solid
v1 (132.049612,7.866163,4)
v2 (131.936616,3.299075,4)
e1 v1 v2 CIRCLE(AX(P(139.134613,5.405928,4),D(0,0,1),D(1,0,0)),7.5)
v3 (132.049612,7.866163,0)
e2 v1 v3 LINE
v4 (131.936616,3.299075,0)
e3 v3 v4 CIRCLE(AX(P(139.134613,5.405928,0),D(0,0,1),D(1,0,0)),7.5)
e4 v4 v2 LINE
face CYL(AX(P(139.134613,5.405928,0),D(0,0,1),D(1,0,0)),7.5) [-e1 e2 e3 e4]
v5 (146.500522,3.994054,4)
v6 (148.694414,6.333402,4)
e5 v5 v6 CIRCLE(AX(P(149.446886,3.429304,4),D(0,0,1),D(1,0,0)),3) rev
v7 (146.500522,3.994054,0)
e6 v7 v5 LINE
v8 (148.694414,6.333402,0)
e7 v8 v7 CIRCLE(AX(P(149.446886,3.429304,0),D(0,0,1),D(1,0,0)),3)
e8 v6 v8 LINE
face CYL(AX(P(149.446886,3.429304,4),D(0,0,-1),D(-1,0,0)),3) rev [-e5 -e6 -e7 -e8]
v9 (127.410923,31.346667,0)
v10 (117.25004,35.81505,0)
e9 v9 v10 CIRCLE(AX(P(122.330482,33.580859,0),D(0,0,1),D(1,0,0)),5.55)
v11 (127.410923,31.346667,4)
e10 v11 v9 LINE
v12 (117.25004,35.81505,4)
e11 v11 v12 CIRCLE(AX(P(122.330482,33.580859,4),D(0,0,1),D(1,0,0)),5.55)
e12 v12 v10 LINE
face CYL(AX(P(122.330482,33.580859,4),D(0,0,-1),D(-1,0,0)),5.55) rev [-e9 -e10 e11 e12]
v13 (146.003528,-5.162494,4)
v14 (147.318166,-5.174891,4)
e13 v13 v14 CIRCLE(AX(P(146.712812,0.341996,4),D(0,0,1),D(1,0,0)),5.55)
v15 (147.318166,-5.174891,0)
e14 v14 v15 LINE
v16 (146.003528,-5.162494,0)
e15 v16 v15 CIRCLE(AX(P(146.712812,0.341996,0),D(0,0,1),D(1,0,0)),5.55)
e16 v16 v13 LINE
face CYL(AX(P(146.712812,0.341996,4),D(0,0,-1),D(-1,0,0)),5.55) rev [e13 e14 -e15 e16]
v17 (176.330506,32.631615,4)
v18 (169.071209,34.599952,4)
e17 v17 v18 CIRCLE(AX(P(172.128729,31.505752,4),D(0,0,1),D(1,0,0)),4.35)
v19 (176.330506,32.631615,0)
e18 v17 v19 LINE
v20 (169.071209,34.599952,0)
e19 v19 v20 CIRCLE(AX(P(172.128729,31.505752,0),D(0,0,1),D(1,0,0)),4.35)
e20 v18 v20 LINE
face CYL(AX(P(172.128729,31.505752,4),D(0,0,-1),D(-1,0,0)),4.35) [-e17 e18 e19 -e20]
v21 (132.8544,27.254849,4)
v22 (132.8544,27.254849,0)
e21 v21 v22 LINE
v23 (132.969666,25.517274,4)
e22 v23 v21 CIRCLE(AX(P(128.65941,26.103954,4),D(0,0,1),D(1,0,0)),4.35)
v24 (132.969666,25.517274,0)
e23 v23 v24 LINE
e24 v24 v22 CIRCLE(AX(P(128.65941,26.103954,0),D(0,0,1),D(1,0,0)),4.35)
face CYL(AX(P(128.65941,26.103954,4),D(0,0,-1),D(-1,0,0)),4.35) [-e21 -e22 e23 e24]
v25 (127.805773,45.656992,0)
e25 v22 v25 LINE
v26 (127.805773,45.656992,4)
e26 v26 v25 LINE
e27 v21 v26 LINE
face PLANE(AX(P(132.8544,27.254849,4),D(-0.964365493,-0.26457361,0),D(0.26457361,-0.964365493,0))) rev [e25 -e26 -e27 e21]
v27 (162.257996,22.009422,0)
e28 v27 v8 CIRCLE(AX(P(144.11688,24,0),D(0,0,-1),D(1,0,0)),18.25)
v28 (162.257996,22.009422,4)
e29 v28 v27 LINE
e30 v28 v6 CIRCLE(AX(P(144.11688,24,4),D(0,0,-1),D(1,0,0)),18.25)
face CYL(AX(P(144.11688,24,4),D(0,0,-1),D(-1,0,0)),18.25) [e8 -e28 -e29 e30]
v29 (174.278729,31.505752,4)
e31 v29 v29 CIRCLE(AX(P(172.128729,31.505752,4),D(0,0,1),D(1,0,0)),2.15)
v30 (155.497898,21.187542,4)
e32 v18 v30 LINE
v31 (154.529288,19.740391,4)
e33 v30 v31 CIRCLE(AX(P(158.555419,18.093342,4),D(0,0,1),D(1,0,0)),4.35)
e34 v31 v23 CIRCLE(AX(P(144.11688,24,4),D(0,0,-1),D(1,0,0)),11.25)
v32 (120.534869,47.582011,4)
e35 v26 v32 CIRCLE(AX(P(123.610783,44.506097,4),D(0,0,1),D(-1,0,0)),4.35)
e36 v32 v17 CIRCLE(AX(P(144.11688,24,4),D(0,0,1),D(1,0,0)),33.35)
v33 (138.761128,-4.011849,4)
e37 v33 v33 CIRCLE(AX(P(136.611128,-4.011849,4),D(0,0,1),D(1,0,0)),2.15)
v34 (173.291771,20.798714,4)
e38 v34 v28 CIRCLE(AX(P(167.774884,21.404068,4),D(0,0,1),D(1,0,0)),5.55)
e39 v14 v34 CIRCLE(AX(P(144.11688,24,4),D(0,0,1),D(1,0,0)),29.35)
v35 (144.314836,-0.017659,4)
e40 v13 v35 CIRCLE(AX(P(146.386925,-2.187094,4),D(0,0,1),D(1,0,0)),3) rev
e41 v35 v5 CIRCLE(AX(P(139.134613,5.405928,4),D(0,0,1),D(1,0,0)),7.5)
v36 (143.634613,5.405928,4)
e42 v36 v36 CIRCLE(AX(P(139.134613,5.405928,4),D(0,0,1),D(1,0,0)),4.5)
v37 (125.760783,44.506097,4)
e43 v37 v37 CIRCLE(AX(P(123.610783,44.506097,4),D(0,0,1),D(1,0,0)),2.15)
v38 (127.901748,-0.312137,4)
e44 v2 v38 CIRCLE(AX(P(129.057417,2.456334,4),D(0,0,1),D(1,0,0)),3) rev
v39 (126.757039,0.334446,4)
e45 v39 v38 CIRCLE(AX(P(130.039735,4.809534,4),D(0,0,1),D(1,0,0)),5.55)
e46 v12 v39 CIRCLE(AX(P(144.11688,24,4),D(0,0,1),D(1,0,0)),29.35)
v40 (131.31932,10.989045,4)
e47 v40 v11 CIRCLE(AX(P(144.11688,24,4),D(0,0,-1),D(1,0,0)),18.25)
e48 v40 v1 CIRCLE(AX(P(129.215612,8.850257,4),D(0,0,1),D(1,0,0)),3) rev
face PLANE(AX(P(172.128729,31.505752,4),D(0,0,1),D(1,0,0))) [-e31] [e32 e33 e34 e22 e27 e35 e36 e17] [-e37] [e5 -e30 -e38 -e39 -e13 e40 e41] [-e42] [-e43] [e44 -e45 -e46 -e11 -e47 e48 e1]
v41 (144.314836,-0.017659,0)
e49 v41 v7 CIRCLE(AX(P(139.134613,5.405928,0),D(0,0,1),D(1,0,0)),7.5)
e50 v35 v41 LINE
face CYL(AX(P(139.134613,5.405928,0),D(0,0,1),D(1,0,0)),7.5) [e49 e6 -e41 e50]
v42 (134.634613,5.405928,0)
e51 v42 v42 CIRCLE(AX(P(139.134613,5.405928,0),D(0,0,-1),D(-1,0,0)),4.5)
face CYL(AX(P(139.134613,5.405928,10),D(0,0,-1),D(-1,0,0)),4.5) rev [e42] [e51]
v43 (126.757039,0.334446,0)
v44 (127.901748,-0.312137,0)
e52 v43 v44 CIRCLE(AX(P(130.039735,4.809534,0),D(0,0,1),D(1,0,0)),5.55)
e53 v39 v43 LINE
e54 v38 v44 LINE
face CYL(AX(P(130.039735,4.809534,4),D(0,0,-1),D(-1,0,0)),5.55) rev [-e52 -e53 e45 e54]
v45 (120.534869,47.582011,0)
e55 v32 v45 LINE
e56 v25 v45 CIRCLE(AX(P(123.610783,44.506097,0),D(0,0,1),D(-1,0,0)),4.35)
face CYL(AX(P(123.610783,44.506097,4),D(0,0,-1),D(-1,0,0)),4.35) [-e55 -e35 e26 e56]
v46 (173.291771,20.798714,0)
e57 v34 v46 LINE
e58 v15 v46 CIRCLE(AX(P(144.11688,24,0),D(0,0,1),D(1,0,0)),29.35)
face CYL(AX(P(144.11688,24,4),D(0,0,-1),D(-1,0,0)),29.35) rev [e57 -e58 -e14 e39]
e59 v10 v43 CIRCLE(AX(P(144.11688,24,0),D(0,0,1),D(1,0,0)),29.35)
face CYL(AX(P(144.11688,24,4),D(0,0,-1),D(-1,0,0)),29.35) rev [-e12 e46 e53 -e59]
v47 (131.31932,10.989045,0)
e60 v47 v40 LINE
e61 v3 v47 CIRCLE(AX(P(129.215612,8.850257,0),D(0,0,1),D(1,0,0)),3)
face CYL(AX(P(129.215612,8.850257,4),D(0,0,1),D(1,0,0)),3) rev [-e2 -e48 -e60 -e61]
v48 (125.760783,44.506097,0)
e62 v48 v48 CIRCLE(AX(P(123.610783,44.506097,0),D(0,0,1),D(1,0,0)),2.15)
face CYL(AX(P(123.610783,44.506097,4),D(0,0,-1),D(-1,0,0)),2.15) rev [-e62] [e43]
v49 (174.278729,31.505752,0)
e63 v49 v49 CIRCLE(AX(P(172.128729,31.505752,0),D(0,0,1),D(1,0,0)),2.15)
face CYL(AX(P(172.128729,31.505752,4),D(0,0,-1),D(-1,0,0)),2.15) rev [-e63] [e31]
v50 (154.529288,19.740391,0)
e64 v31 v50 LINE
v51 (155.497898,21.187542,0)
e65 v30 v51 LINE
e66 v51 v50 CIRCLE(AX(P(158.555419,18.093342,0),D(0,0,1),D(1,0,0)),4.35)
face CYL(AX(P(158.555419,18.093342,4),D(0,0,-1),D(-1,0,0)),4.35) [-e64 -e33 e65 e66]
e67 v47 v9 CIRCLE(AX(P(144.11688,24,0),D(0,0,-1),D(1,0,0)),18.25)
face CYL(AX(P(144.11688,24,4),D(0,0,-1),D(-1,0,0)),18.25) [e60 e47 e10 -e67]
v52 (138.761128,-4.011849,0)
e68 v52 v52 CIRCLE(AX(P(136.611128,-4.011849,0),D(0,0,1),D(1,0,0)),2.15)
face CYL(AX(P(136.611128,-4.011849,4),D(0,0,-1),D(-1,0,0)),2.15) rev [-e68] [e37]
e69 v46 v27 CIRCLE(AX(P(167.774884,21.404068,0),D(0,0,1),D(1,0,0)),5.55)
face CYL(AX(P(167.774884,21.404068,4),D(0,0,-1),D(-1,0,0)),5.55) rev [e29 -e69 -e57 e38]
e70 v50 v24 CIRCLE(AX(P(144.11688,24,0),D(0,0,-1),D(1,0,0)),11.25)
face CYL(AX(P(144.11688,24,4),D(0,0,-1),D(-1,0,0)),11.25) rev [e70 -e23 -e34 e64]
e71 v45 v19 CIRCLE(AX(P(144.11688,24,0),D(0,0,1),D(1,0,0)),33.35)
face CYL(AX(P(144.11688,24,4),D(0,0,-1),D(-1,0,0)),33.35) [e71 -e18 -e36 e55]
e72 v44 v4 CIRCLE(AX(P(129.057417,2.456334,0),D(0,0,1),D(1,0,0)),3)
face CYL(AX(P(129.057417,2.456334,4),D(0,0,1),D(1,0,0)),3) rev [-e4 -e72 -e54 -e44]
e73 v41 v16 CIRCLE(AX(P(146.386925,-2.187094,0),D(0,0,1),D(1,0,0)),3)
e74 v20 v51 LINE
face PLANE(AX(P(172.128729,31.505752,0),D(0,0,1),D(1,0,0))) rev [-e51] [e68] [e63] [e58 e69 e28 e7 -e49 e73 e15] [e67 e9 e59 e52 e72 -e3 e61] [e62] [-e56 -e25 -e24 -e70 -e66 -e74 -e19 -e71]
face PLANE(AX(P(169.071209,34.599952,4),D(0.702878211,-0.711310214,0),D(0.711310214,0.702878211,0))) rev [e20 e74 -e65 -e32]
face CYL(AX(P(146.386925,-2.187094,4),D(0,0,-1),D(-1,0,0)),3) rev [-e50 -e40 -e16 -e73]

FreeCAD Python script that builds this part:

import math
import FreeCAD as App
import Part
import Sketcher
Q = App.Units.Quantity


def edges_at(feature, points):
    """Names of the edges that pass closest to the given points."""
    edges = feature.Shape.Edges
    near = lambda p: min(range(len(edges)), key=lambda i: edges[i].distToShape(Part.Vertex(*p))[0])
    return sorted({f"Edge{near(p) + 1}" for p in points})

doc = App.newDocument("Part")
body = doc.addObject("PartDesign::Body", "Body")

# Sketch on XY plane
sketch1 = body.newObject("Sketcher::SketchObject", "Sketch")
sketch1.AttachmentSupport = (doc.getObject("XY_Plane"), [""])
sketch1.MapMode = "FlatFace"
sketch1.addGeometry([
    Part.LineSegment(App.Vector(169.071209, 34.599952, 0), App.Vector(155.497898, 21.187542, 0)),  # 0
    Part.ArcOfCircle(Part.Circle(App.Vector(158.555419, 18.093343, 0), App.Vector(0, 0, 1), 4.35), math.radians(134.658382), math.radians(157.751035)),  # 1
    Part.ArcOfCircle(Part.Circle(App.Vector(144.11688, 24, 0), App.Vector(0, 0, 1), 11.25), math.radians(172.248965), math.radians(337.751035)),  # 2
    Part.ArcOfCircle(Part.Circle(App.Vector(128.65941, 26.103954, 0), App.Vector(0, 0, 1), 4.35), math.radians(-7.751035), math.radians(15.341618)),  # 3
    Part.LineSegment(App.Vector(132.8544, 27.254849, 0), App.Vector(127.805773, 45.656992, 0)),  # 4
    Part.ArcOfCircle(Part.Circle(App.Vector(123.610783, 44.506097, 0), App.Vector(0, 0, 1), 4.35), math.radians(15.341618), math.radians(135)),  # 5
    Part.ArcOfCircle(Part.Circle(App.Vector(144.11688, 24, 0), App.Vector(0, 0, 1), 33.35), math.radians(135), math.radians(375)),  # 6
    Part.ArcOfCircle(Part.Circle(App.Vector(172.128729, 31.505752, 0), App.Vector(0, 0, 1), 4.35), math.radians(15), math.radians(134.658382)),  # 7
    Part.Circle(App.Vector(136.611128, -4.011849, 0), App.Vector(0, 0, 1), 2.15),  # 8
    Part.ArcOfCircle(Part.Circle(App.Vector(122.330482, 33.580859, 0), App.Vector(0, 0, 1), 5.55), math.radians(-23.738132), math.radians(156.261868)),  # 9
    Part.ArcOfCircle(Part.Circle(App.Vector(144.11688, 24, 0), App.Vector(0, 0, 1), 18.25), math.radians(156.261868), math.radians(233.738132)),  # 10
    Part.ArcOfCircle(Part.Circle(App.Vector(130.039735, 4.809534, 0), App.Vector(0, 0, 1), 5.55), math.radians(-126.261868), math.radians(53.738132)),  # 11
    Part.ArcOfCircle(Part.Circle(App.Vector(144.11688, 24, 0), App.Vector(0, 0, 1), 29.35), math.radians(156.261868), math.radians(233.738132)),  # 12
    Part.ArcOfCircle(Part.Circle(App.Vector(167.774884, 21.404068, 0), App.Vector(0, 0, 1), 5.55), math.radians(-6.261868), math.radians(173.738132)),  # 13
    Part.ArcOfCircle(Part.Circle(App.Vector(144.11688, 24, 0), App.Vector(0, 0, 1), 29.35), math.radians(-83.738132), math.radians(-6.261868)),  # 14
    Part.ArcOfCircle(Part.Circle(App.Vector(146.712812, 0.341996, 0), App.Vector(0, 0, 1), 5.55), math.radians(96.261868), math.radians(276.261868)),  # 15
    Part.ArcOfCircle(Part.Circle(App.Vector(144.11688, 24, 0), App.Vector(0, 0, 1), 18.25), math.radians(-83.738132), math.radians(-6.261868)),  # 16
    Part.Circle(App.Vector(123.610783, 44.506097, 0), App.Vector(0, 0, 1), 2.15),  # 17
    Part.Circle(App.Vector(172.128729, 31.505752, 0), App.Vector(0, 0, 1), 2.15),  # 18
], False)
sketch1.addConstraint([
    Sketcher.Constraint("Tangent", 0, 2, 1, 1),
    Sketcher.Constraint("Tangent", 1, 2, 2, 2),
    Sketcher.Constraint("Tangent", 2, 1, 3, 1),
    Sketcher.Constraint("Tangent", 3, 2, 4, 1),
    Sketcher.Constraint("Tangent", 4, 2, 5, 1),
    Sketcher.Constraint("Tangent", 5, 2, 6, 1),
    Sketcher.Constraint("Tangent", 6, 2, 7, 1),
    Sketcher.Constraint("Tangent", 7, 2, 0, 1),
    Sketcher.Constraint("Tangent", 9, 1, 10, 1),
    Sketcher.Constraint("Tangent", 10, 2, 11, 2),
    Sketcher.Constraint("Tangent", 11, 1, 12, 2),
    Sketcher.Constraint("Tangent", 12, 1, 9, 2),
    Sketcher.Constraint("Tangent", 13, 1, 14, 2),
    Sketcher.Constraint("Tangent", 14, 1, 15, 2),
    Sketcher.Constraint("Tangent", 15, 1, 16, 1),
    Sketcher.Constraint("Tangent", 16, 2, 13, 2),
    Sketcher.Constraint("Coincident", 6, 3, 2, 3),
    Sketcher.Constraint("Coincident", 10, 3, 2, 3),
    Sketcher.Constraint("Coincident", 12, 3, 2, 3),
    Sketcher.Constraint("Coincident", 14, 3, 2, 3),
    Sketcher.Constraint("Coincident", 16, 3, 2, 3),
    Sketcher.Constraint("Coincident", 17, 3, 5, 3),
    Sketcher.Constraint("Coincident", 18, 3, 7, 3),
    Sketcher.Constraint("Equal", 1, 3),
    Sketcher.Constraint("Equal", 3, 5),
    Sketcher.Constraint("Equal", 5, 7),
    Sketcher.Constraint("Equal", 11, 13),
    Sketcher.Constraint("Equal", 12, 14),
    Sketcher.Constraint("Equal", 8, 17),
    Sketcher.Constraint("Equal", 17, 18),
    Sketcher.Constraint("Equal", 0, 4),
    Sketcher.Constraint("Diameter", 8, Q("4.3 mm")),
    Sketcher.Constraint("Radius", 1, Q("4.35 mm")),
    Sketcher.Constraint("Radius", 2, Q("11.25 mm")),
    Sketcher.Constraint("Radius", 6, Q("33.35 mm")),
    Sketcher.Constraint("Radius", 9, Q("5.55 mm")),
    Sketcher.Constraint("Radius", 10, Q("18.25 mm")),
    Sketcher.Constraint("DistanceY", -1, 1, 2, 3, Q("24 mm")),
    Sketcher.Constraint("DistanceX", -1, 1, 0, 2, Q("155.497898 mm")),
    Sketcher.Constraint("DistanceX", -1, 1, 3, 2, Q("132.8544 mm")),
    Sketcher.Constraint("DistanceY", 3, 3, 7, 3, Q("5.401798 mm")),
    Sketcher.Constraint("DistanceX", 9, 3, 5, 3, Q("1.280302 mm")),
    Sketcher.Constraint("DistanceX", 9, 3, 6, 3, Q("21.786398 mm")),
    Sketcher.Constraint("DistanceY", 13, 1, 6, 2, Q("11.832901 mm")),
    Sketcher.Constraint("DistanceY", 8, 3, -1, 1, Q("4.011849 mm")),
    Sketcher.Constraint("DistanceX", -1, 1, 10, 2, Q("133.322431 mm")),
    Sketcher.Constraint("DistanceY", 14, 1, -1, 1, Q("5.174891 mm")),
    Sketcher.Constraint("DistanceX", 8, 3, 1, 3, Q("21.944291 mm")),
])
pad1 = body.newObject("PartDesign::Pad", "Pad")
pad1.Profile = sketch1
pad1.Length = 4

# Sketch on XY plane
sketch2 = body.newObject("Sketcher::SketchObject", "Sketch001")
sketch2.AttachmentSupport = (doc.getObject("XY_Plane"), [""])
sketch2.MapMode = "FlatFace"
sketch2.addGeometry(Part.Circle(App.Vector(139.134613, 5.405928, 0), App.Vector(0, 0, 1), 4.5), False)
sketch2.addConstraint([
    Sketcher.Constraint("Diameter", 0, Q("9 mm")),
    Sketcher.Constraint("DistanceX", -1, 1, 0, 3, Q("139.134613 mm")),
    Sketcher.Constraint("DistanceY", -1, 1, 0, 3, Q("5.405928 mm")),
])
pocket1 = body.newObject("PartDesign::Pocket", "Pocket")
pocket1.Profile = sketch2
pocket1.Length = 10
pocket1.Reversed = True

# Sketch on XY plane
sketch3 = body.newObject("Sketcher::SketchObject", "Sketch002")
sketch3.AttachmentSupport = (doc.getObject("XY_Plane"), [""])
sketch3.MapMode = "FlatFace"
sketch3.addGeometry([
    Part.Circle(App.Vector(139.134613, 5.405928, 0), App.Vector(0, 0, 1), 7.5),
    Part.Circle(App.Vector(139.134613, 5.405928, 0), App.Vector(0, 0, 1), 4.5),
], False)
sketch3.addConstraint([
    Sketcher.Constraint("Coincident", 1, 3, 0, 3),
    Sketcher.Constraint("Diameter", 0, Q("15 mm")),
    Sketcher.Constraint("Diameter", 1, Q("9 mm")),
    Sketcher.Constraint("DistanceX", -1, 1, 0, 3, Q("139.134613 mm")),
    Sketcher.Constraint("DistanceY", -1, 1, 0, 3, Q("5.405928 mm")),
])
pad2 = body.newObject("PartDesign::Pad", "Pad001")
pad2.Profile = sketch3
pad2.Length = 4
doc.recompute()

fillet = body.newObject("PartDesign::Fillet", "Fillet")
fillet.Base = (pad2, edges_at(pad2, [
    (133.493, 0.464, 2),
    (141.55, -1.695, 2),
    (146.617, 5.922, 2),
    (132.913, 9.594, 2),
]))
fillet.Radius = 3

doc.recompute()
